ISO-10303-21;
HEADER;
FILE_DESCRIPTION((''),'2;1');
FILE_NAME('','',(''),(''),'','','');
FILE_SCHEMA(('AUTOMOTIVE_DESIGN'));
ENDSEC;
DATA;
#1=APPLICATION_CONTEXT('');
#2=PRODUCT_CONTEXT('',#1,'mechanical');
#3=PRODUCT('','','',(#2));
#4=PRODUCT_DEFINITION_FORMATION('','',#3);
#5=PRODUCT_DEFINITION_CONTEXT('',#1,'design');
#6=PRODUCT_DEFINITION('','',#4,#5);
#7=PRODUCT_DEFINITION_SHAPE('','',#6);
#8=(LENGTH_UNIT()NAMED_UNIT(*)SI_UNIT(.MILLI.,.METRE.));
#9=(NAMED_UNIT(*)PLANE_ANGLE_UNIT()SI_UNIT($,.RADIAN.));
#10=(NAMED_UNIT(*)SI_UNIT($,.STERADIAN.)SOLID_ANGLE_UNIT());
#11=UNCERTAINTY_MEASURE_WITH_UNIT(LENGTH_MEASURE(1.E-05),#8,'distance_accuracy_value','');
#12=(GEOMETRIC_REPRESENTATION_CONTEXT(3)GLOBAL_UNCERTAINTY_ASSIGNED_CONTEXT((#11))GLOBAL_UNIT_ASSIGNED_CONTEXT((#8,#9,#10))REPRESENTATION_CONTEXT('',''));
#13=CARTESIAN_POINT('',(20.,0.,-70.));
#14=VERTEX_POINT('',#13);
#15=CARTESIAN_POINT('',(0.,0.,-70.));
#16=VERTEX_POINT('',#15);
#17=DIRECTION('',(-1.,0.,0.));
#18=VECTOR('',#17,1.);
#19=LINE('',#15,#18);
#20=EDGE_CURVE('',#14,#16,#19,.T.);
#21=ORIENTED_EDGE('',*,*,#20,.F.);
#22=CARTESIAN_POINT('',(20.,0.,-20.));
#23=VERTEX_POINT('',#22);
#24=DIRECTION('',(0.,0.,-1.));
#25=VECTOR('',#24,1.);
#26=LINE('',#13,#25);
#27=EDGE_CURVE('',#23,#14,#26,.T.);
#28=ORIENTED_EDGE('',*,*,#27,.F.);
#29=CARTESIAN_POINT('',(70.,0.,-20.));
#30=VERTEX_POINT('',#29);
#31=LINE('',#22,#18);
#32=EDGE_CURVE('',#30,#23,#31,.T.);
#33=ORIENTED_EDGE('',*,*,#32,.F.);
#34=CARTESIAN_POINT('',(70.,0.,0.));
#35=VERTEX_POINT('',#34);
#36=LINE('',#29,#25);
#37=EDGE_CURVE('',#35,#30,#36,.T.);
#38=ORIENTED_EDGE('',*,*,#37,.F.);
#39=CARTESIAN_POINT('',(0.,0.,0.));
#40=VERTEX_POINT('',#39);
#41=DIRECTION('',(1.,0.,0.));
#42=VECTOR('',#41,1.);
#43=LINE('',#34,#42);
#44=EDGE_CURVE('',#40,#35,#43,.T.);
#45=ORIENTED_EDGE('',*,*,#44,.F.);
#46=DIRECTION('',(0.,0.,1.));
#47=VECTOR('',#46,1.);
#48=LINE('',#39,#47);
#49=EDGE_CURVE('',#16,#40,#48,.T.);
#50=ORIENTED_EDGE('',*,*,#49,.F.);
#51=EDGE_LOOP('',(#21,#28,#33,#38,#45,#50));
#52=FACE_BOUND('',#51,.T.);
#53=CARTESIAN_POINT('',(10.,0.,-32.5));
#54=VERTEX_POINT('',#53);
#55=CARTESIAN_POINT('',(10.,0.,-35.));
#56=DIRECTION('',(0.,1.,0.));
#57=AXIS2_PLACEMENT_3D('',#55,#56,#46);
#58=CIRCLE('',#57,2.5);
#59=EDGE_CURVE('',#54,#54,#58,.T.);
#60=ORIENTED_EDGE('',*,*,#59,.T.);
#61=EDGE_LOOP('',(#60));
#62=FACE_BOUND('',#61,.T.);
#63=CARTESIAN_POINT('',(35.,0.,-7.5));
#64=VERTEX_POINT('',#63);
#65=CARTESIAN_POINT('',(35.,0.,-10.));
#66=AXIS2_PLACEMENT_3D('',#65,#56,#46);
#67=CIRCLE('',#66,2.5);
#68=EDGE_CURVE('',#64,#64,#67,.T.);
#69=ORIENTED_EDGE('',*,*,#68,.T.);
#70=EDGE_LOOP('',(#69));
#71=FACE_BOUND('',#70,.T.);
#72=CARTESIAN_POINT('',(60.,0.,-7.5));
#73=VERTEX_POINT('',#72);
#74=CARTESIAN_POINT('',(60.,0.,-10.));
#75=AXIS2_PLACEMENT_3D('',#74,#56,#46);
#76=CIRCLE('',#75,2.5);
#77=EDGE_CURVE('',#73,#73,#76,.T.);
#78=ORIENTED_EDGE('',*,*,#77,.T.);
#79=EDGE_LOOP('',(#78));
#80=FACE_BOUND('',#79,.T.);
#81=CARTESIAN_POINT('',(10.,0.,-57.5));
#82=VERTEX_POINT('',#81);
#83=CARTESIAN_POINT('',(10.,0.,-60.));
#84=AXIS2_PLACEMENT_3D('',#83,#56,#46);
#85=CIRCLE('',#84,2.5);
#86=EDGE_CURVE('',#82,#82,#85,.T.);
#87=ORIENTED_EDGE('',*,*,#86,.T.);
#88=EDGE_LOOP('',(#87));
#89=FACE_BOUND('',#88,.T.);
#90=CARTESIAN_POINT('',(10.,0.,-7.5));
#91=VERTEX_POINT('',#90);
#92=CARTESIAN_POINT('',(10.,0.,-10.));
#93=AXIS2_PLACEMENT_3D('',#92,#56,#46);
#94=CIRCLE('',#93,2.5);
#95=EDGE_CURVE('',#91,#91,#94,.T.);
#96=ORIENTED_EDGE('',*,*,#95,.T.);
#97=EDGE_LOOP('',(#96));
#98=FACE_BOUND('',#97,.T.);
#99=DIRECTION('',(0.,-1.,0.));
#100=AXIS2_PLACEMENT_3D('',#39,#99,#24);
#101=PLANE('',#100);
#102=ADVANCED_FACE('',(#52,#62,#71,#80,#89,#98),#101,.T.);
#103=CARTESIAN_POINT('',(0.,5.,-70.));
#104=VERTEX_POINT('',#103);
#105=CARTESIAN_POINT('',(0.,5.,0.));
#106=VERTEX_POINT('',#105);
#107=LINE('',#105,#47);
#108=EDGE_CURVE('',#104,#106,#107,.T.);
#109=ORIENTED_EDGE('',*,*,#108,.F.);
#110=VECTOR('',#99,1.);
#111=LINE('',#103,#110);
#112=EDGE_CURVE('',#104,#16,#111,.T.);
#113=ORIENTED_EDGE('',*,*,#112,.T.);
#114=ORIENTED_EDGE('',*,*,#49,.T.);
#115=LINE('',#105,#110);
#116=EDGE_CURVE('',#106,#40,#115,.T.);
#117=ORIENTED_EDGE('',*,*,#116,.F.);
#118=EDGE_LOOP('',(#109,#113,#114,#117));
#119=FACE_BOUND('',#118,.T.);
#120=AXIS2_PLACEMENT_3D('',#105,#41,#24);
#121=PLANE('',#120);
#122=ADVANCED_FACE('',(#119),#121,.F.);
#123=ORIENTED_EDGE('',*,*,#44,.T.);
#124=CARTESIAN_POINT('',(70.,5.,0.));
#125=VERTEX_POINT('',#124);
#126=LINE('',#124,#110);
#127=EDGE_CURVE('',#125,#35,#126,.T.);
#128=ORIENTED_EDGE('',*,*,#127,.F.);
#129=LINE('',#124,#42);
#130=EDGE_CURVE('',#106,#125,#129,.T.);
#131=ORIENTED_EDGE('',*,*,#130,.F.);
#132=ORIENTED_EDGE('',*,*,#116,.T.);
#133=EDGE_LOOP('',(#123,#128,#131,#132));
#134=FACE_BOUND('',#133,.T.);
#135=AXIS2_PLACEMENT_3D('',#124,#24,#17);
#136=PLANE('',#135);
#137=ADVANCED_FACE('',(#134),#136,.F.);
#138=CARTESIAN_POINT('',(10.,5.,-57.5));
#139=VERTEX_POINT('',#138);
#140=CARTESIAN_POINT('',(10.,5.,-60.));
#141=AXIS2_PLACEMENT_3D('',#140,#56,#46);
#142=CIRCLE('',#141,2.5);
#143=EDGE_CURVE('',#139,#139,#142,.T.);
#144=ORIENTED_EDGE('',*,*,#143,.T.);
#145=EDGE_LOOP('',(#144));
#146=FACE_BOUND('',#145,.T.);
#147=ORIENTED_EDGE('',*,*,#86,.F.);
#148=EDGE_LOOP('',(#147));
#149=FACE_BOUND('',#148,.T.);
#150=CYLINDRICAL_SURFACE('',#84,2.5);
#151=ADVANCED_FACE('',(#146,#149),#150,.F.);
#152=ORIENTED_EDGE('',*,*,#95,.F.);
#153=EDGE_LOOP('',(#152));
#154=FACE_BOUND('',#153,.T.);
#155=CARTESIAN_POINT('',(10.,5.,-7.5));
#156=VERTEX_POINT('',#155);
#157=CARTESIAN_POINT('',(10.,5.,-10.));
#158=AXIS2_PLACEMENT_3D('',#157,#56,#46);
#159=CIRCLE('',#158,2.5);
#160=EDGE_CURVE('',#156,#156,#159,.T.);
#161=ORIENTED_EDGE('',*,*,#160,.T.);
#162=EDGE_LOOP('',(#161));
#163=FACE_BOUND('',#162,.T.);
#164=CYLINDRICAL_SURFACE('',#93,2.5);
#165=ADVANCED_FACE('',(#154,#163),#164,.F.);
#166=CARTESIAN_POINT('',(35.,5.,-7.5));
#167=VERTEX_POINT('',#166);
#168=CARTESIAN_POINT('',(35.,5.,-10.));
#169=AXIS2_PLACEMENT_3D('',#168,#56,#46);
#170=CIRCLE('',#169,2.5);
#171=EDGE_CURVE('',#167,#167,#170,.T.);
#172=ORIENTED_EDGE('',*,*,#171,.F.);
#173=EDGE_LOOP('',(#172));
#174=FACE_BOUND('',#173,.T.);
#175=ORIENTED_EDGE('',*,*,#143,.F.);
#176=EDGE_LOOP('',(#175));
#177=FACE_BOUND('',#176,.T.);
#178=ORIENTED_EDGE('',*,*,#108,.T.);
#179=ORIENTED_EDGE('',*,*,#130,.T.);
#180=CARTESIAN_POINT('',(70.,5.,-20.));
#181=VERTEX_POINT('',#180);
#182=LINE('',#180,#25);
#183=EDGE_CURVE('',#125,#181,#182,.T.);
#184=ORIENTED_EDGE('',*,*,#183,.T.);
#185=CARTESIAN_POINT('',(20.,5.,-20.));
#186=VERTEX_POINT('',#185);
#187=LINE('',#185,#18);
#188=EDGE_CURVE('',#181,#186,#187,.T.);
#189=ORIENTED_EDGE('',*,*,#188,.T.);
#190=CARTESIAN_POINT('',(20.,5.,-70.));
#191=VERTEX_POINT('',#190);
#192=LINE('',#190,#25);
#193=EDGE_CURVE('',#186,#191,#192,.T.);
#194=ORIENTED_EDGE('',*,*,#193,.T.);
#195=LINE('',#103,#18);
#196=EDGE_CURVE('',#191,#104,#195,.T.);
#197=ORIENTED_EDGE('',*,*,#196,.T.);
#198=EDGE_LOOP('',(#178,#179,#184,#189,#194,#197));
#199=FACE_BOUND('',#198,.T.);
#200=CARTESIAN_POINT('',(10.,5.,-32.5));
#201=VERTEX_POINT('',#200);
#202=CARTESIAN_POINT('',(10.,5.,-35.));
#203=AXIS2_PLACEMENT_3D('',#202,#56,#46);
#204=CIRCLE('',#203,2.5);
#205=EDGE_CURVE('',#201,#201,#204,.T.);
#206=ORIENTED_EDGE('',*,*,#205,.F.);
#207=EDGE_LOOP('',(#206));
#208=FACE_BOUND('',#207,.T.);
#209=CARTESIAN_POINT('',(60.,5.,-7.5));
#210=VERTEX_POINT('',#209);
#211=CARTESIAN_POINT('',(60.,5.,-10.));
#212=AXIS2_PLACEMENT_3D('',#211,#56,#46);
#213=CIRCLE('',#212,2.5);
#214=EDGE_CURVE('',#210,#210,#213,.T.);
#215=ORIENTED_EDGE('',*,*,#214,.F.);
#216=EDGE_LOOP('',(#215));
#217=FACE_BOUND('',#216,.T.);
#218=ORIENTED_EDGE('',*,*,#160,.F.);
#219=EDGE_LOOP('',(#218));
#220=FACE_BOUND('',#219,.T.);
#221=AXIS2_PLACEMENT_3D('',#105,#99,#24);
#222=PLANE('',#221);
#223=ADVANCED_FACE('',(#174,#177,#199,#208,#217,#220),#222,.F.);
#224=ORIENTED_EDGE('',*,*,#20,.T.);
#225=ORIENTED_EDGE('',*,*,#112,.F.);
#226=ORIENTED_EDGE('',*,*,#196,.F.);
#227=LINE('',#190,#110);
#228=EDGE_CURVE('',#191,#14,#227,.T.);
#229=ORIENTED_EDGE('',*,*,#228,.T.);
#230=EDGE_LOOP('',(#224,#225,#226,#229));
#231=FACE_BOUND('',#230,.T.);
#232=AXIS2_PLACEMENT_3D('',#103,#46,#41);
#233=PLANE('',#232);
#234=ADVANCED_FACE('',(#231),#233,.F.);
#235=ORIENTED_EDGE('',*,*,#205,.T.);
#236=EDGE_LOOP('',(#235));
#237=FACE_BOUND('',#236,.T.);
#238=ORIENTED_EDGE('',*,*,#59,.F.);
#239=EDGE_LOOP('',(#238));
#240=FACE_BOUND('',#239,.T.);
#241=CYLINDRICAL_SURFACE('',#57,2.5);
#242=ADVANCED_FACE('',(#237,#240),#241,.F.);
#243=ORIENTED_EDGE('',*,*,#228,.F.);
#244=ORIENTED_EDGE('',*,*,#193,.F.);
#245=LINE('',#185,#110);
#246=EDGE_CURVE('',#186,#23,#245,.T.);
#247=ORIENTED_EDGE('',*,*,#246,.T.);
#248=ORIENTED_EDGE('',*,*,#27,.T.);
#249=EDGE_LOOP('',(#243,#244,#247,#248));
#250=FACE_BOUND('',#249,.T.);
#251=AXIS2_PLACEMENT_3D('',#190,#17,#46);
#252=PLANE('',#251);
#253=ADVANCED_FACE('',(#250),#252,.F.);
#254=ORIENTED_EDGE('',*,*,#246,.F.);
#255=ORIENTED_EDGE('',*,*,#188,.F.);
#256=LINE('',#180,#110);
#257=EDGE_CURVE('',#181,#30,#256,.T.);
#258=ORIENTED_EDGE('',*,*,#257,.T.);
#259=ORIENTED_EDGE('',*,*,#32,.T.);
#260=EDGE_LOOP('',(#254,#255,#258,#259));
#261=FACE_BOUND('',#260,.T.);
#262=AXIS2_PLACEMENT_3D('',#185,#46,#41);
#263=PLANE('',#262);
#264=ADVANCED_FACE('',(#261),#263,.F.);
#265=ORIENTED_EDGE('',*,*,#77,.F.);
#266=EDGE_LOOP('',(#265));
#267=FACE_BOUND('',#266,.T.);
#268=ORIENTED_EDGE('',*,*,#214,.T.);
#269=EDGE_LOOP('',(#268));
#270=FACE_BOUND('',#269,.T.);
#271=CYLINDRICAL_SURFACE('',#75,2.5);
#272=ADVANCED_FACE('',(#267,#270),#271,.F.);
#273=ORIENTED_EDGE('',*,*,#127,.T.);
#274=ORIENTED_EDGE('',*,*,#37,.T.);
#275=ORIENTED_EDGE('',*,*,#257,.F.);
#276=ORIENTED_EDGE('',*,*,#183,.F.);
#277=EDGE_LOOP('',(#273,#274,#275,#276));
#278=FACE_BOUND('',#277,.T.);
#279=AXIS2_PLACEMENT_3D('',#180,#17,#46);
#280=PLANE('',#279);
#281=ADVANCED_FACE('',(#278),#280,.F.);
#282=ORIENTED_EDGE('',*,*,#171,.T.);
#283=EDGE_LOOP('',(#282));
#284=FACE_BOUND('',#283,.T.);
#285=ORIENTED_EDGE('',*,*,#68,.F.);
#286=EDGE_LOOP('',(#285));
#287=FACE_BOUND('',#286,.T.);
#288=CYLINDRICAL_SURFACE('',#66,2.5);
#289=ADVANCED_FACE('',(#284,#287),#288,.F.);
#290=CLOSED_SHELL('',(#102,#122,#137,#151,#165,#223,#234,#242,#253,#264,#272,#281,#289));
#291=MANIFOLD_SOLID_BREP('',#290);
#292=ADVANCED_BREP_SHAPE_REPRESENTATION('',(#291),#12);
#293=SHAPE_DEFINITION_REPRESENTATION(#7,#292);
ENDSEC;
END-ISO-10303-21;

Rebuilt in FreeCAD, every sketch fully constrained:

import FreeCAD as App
import Part
import Sketcher

V = App.Vector
Q = App.Units.Quantity


def add_polygon(sketch, points):
    """Adds a closed chain of lines whose ends are joined by coincident constraints."""
    first, n = sketch.GeometryCount, len(points)
    for a, b in zip(points, points[1:] + points[:1]):
        sketch.addGeometry(Part.LineSegment(App.Vector(*a, 0), App.Vector(*b, 0)), False)
    for i in range(n):
        sketch.addConstraint(Sketcher.Constraint("Coincident", first + i, 2, first + (i + 1) % n, 1))

doc = App.newDocument("Part")
body = doc.addObject("PartDesign::Body", "Body")

# Sketch on XZ plane
sketch1 = body.newObject("Sketcher::SketchObject", "Sketch")
sketch1.AttachmentSupport = (doc.getObject("XZ_Plane"), [""])
sketch1.MapMode = "FlatFace"
add_polygon(sketch1, [(0, -70), (0, 0), (70, 0), (70, -20), (20, -20), (20, -70)])  # lines 0-5
sketch1.addConstraint([
    Sketcher.Constraint("Vertical", 0),
    Sketcher.Constraint("Horizontal", 1),
    Sketcher.Constraint("Vertical", 2),
    Sketcher.Constraint("Horizontal", 3),
    Sketcher.Constraint("Vertical", 4),
    Sketcher.Constraint("Horizontal", 5),
    Sketcher.Constraint("Coincident", 0, 2, -1, 1),
    Sketcher.Constraint("Equal", 1, 0),
    Sketcher.Constraint("Equal", 5, 2),
    Sketcher.Constraint("DistanceX", 1, 1, 1, 2, Q("70 mm")),
    Sketcher.Constraint("DistanceX", 3, 2, 3, 1, Q("50 mm")),
])
pad1 = body.newObject("PartDesign::Pad", "Pad")
pad1.Profile = sketch1
pad1.Length = 5
pad1.Reversed = True

# Sketch on XZ plane
sketch2 = body.newObject("Sketcher::SketchObject", "Sketch001")
sketch2.AttachmentSupport = (doc.getObject("XZ_Plane"), [""])
sketch2.MapMode = "FlatFace"
sketch2.AttachmentOffset = App.Placement(V(0, 0, -5), App.Rotation())
sketch2.addGeometry([
    Part.Circle(V(10, -60, 0), V(0, 0, 1), 2.5),  # 0
    Part.Circle(V(10, -35, 0), V(0, 0, 1), 2.5),  # 1
    Part.Circle(V(10, -10, 0), V(0, 0, 1), 2.5),  # 2
    Part.Circle(V(35, -10, 0), V(0, 0, 1), 2.5),  # 3
    Part.Circle(V(60, -10, 0), V(0, 0, 1), 2.5),  # 4
], False)
sketch2.addConstraint([
    Sketcher.Constraint("Equal", 0, 1),
    Sketcher.Constraint("Equal", 1, 2),
    Sketcher.Constraint("Equal", 2, 3),
    Sketcher.Constraint("Equal", 3, 4),
    Sketcher.Constraint("Horizontal", 2, 3, 3, 3),
    Sketcher.Constraint("Horizontal", 3, 3, 4, 3),
    Sketcher.Constraint("Vertical", 0, 3, 1, 3),
    Sketcher.Constraint("Vertical", 1, 3, 2, 3),
    Sketcher.Constraint("Diameter", 0, Q("5 mm")),
    Sketcher.Constraint("DistanceX", -1, 1, 0, 3, Q("10 mm")),
    Sketcher.Constraint("DistanceY", 0, 3, -1, 1, Q("60 mm")),
    Sketcher.Constraint("DistanceY", 1, 3, -1, 1, Q("35 mm")),
    Sketcher.Constraint("DistanceY", 2, 3, -1, 1, Q("10 mm")),
    Sketcher.Constraint("DistanceX", -1, 1, 3, 3, Q("35 mm")),
    Sketcher.Constraint("DistanceX", -1, 1, 4, 3, Q("60 mm")),
])
pocket1 = body.newObject("PartDesign::Pocket", "Pocket")
pocket1.Profile = sketch2
pocket1.Type = "ThroughAll"
pocket1.Reversed = True

doc.recompute()
